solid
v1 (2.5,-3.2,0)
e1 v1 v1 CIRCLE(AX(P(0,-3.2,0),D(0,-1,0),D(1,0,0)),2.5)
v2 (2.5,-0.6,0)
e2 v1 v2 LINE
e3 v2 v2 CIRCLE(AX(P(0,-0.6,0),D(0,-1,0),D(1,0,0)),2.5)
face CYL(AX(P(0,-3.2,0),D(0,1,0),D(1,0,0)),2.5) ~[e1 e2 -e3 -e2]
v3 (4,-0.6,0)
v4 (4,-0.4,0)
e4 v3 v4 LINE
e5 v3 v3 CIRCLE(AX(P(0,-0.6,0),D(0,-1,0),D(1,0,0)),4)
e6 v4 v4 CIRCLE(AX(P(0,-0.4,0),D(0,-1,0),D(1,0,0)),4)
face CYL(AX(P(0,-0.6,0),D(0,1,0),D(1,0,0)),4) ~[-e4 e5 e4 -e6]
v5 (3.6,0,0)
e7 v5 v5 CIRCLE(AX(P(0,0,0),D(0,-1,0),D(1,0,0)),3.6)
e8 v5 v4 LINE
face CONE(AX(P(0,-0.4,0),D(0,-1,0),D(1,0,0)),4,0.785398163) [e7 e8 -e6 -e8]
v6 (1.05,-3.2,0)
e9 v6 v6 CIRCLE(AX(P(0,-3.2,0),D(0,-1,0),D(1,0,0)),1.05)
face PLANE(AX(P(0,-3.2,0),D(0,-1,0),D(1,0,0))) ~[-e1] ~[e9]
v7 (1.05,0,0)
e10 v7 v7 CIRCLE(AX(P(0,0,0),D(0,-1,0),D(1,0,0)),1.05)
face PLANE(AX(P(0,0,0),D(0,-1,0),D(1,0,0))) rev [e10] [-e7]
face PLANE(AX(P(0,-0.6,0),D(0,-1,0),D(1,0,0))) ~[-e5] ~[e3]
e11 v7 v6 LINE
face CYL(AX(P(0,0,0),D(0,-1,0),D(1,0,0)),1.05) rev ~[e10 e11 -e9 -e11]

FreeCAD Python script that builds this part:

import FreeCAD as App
import Part
import Sketcher
Q = App.Units.Quantity


def edges_at(feature, points):
    """Names of the edges that pass closest to the given points."""
    edges = feature.Shape.Edges
    near = lambda p: min(range(len(edges)), key=lambda i: edges[i].distToShape(Part.Vertex(*p))[0])
    return sorted({f"Edge{near(p) + 1}" for p in points})

doc = App.newDocument("Part")
body = doc.addObject("PartDesign::Body", "Body")

# Sketch on XY plane
sketch1 = body.newObject("Sketcher::SketchObject", "Sketch")
sketch1.AttachmentSupport = (doc.getObject("XY_Plane"), [""])
sketch1.MapMode = "FlatFace"
sketch1.addGeometry(Part.LineSegment(App.Vector(4, 0, 0), App.Vector(1.05, 0, 0)), False)
sketch1.addGeometry(Part.LineSegment(App.Vector(1.05, 0, 0), App.Vector(1.05, -3.2, 0)), False)
sketch1.addGeometry(Part.LineSegment(App.Vector(1.05, -3.2, 0), App.Vector(2.5, -3.2, 0)), False)
sketch1.addGeometry(Part.LineSegment(App.Vector(2.5, -3.2, 0), App.Vector(2.5, -0.6, 0)), False)
sketch1.addGeometry(Part.LineSegment(App.Vector(2.5, -0.6, 0), App.Vector(4, -0.6, 0)), False)
sketch1.addGeometry(Part.LineSegment(App.Vector(4, -0.6, 0), App.Vector(4, 0, 0)), False)
sketch1.addConstraint(Sketcher.Constraint("Coincident", 0, 2, 1, 1))
sketch1.addConstraint(Sketcher.Constraint("Coincident", 1, 2, 2, 1))
sketch1.addConstraint(Sketcher.Constraint("Coincident", 2, 2, 3, 1))
sketch1.addConstraint(Sketcher.Constraint("Coincident", 3, 2, 4, 1))
sketch1.addConstraint(Sketcher.Constraint("Coincident", 4, 2, 5, 1))
sketch1.addConstraint(Sketcher.Constraint("Coincident", 5, 2, 0, 1))
sketch1.addConstraint(Sketcher.Constraint("Horizontal", 0))
sketch1.addConstraint(Sketcher.Constraint("Vertical", 1))
sketch1.addConstraint(Sketcher.Constraint("Horizontal", 2))
sketch1.addConstraint(Sketcher.Constraint("Vertical", 3))
sketch1.addConstraint(Sketcher.Constraint("Horizontal", 4))
sketch1.addConstraint(Sketcher.Constraint("Vertical", 5))
sketch1.addConstraint(Sketcher.Constraint("PointOnObject", 0, 2, -1))
sketch1.addConstraint(Sketcher.Constraint("DistanceY", 1, 2, 1, 1, Q("3.2 mm")))
sketch1.addConstraint(Sketcher.Constraint("DistanceY", 3, 1, 3, 2, Q("2.6 mm")))
sketch1.addConstraint(Sketcher.Constraint("DistanceX", -1, 1, 4, 2, Q("4 mm")))
sketch1.addConstraint(Sketcher.Constraint("DistanceX", -1, 1, 2, 2, Q("2.5 mm")))
sketch1.addConstraint(Sketcher.Constraint("DistanceX", -1, 1, 0, 2, Q("1.05 mm")))
revolution = body.newObject("PartDesign::Revolution", "Revolution")
revolution.Profile = sketch1
revolution.ReferenceAxis = (sketch1, ["V_Axis"])
revolution.Angle = 360
doc.recompute()

chamfer = body.newObject("PartDesign::Chamfer", "Chamfer")
chamfer.Base = (revolution, edges_at(revolution, [(-4, 0, 0)]))
chamfer.Size = 0.4

doc.recompute()
